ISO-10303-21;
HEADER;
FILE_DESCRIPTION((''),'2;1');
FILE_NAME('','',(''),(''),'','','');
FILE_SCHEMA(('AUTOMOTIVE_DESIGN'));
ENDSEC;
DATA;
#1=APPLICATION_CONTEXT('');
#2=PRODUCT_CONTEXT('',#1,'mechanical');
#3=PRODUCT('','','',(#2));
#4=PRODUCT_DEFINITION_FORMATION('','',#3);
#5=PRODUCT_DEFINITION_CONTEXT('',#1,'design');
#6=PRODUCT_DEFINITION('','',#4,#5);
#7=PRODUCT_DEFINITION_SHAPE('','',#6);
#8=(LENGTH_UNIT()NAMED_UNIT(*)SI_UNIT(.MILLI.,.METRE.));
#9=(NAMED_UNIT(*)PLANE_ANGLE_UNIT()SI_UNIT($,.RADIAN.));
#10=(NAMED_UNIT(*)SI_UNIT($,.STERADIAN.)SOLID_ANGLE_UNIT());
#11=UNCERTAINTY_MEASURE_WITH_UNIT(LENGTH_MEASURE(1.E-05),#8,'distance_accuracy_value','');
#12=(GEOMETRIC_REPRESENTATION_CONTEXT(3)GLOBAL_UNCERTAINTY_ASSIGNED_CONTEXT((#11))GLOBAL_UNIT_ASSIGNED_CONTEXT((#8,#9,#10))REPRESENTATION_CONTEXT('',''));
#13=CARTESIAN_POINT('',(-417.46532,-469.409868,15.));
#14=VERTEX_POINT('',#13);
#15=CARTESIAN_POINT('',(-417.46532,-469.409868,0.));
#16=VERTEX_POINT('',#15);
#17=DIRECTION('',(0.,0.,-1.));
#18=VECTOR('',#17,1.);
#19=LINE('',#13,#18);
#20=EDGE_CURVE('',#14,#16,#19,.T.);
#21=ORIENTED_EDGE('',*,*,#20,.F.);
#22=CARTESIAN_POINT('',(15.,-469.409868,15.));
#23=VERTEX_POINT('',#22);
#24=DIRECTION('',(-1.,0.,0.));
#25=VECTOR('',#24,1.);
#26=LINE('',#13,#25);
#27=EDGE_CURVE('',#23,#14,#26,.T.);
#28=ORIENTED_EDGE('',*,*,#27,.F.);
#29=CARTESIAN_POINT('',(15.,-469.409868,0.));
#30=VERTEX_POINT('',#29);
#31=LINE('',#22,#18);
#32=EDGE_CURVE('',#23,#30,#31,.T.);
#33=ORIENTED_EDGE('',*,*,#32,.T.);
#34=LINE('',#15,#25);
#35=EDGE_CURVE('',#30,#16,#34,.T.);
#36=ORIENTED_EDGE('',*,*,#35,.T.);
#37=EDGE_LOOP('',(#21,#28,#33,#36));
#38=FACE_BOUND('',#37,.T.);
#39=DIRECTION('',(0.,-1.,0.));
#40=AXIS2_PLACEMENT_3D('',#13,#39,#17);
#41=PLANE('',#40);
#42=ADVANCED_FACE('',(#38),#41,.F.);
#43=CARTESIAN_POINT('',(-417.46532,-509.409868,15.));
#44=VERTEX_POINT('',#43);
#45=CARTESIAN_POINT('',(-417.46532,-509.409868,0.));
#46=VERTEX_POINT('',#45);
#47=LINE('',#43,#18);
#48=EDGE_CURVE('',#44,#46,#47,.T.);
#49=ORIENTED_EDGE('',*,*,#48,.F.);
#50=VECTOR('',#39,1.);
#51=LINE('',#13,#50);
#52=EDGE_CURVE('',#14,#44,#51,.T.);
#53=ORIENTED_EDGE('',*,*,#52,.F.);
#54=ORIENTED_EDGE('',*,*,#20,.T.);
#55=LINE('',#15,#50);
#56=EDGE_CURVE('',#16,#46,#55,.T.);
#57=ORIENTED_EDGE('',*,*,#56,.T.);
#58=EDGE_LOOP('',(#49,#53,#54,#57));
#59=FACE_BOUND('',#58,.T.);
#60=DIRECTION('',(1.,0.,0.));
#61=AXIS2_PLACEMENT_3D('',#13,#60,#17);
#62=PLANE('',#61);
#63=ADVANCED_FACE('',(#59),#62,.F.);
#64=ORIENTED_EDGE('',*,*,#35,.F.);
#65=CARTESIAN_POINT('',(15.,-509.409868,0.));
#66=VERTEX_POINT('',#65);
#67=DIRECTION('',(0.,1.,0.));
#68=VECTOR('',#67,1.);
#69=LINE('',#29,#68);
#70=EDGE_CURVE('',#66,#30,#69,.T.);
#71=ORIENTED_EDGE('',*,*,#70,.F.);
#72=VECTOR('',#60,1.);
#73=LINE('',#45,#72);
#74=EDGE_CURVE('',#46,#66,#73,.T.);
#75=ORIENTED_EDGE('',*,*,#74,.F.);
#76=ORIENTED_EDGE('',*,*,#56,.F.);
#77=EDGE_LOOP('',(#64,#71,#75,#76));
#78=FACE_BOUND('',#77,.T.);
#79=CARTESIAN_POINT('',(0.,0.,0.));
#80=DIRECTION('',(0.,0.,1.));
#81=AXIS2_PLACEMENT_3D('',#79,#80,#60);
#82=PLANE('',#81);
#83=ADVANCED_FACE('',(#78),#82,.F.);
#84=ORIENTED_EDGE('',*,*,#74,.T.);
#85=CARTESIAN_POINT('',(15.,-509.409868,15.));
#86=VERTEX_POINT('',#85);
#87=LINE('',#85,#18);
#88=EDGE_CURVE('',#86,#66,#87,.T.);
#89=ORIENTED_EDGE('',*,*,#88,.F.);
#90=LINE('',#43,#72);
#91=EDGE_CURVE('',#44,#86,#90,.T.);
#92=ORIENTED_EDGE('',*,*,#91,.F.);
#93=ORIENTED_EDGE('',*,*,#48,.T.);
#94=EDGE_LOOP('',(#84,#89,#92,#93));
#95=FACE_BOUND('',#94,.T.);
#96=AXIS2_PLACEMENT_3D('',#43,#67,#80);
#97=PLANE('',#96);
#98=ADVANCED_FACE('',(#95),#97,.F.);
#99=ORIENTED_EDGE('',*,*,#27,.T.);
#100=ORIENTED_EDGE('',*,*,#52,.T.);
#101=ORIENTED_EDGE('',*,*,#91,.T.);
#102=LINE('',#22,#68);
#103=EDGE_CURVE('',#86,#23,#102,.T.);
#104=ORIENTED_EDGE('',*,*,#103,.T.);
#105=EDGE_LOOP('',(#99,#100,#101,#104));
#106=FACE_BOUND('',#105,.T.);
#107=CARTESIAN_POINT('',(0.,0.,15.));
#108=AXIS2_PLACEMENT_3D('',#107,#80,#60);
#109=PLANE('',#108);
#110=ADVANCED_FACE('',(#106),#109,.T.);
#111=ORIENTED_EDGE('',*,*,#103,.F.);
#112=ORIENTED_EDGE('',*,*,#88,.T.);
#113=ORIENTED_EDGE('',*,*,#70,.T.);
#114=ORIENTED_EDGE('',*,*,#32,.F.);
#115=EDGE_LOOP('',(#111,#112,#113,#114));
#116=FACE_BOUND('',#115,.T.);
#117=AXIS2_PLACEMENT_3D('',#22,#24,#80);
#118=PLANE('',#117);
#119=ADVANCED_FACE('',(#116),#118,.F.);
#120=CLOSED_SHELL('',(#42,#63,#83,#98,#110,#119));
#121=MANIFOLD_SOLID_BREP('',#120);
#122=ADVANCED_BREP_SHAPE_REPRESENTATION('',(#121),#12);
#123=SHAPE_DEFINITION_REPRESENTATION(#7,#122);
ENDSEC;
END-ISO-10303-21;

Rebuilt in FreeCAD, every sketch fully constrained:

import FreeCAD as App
import Part
import Sketcher
from FreeCAD import Vector
Q = App.Units.Quantity


def add_polygon(sketch, points):
    """Adds a closed chain of lines whose ends are joined by coincident constraints."""
    first, n = sketch.GeometryCount, len(points)
    for a, b in zip(points, points[1:] + points[:1]):
        sketch.addGeometry(Part.LineSegment(App.Vector(*a, 0), App.Vector(*b, 0)), False)
    for i in range(n):
        sketch.addConstraint(Sketcher.Constraint("Coincident", first + i, 2, first + (i + 1) % n, 1))

doc = App.newDocument("Part")
body = doc.addObject("PartDesign::Body", "Body")

# Sketch on XY plane
sketch1 = doc.addObject("Sketcher::SketchObject", "Sketch")
body.addObject(sketch1)
sketch1.AttachmentSupport = (doc.XY_Plane, [""])
sketch1.MapMode = "FlatFace"
add_polygon(sketch1, [(-417, -469), (-417, -509), (15, -509), (15, -469)])  # lines 0-3
sketch1.addConstraint(Sketcher.Constraint("Vertical", 0))
sketch1.addConstraint(Sketcher.Constraint("Horizontal", 1))
sketch1.addConstraint(Sketcher.Constraint("Vertical", 2))
sketch1.addConstraint(Sketcher.Constraint("Horizontal", 3))
sketch1.addConstraint(Sketcher.Constraint("DistanceY", 0, 2, 0, 1, Q("40 mm")))
sketch1.addConstraint(Sketcher.Constraint("DistanceX", -1, 1, 1, 2, Q("15 mm")))
sketch1.addConstraint(Sketcher.Constraint("DistanceX", 1, 1, 1, 2, Q("432.46532 mm")))
sketch1.addConstraint(Sketcher.Constraint("DistanceY", 0, 2, -1, 1, Q("509.409868 mm")))
pad1 = doc.addObject("PartDesign::Pad", "Pad")
body.addObject(pad1)
pad1.Profile = sketch1
pad1.Length = 15

doc.recompute()
